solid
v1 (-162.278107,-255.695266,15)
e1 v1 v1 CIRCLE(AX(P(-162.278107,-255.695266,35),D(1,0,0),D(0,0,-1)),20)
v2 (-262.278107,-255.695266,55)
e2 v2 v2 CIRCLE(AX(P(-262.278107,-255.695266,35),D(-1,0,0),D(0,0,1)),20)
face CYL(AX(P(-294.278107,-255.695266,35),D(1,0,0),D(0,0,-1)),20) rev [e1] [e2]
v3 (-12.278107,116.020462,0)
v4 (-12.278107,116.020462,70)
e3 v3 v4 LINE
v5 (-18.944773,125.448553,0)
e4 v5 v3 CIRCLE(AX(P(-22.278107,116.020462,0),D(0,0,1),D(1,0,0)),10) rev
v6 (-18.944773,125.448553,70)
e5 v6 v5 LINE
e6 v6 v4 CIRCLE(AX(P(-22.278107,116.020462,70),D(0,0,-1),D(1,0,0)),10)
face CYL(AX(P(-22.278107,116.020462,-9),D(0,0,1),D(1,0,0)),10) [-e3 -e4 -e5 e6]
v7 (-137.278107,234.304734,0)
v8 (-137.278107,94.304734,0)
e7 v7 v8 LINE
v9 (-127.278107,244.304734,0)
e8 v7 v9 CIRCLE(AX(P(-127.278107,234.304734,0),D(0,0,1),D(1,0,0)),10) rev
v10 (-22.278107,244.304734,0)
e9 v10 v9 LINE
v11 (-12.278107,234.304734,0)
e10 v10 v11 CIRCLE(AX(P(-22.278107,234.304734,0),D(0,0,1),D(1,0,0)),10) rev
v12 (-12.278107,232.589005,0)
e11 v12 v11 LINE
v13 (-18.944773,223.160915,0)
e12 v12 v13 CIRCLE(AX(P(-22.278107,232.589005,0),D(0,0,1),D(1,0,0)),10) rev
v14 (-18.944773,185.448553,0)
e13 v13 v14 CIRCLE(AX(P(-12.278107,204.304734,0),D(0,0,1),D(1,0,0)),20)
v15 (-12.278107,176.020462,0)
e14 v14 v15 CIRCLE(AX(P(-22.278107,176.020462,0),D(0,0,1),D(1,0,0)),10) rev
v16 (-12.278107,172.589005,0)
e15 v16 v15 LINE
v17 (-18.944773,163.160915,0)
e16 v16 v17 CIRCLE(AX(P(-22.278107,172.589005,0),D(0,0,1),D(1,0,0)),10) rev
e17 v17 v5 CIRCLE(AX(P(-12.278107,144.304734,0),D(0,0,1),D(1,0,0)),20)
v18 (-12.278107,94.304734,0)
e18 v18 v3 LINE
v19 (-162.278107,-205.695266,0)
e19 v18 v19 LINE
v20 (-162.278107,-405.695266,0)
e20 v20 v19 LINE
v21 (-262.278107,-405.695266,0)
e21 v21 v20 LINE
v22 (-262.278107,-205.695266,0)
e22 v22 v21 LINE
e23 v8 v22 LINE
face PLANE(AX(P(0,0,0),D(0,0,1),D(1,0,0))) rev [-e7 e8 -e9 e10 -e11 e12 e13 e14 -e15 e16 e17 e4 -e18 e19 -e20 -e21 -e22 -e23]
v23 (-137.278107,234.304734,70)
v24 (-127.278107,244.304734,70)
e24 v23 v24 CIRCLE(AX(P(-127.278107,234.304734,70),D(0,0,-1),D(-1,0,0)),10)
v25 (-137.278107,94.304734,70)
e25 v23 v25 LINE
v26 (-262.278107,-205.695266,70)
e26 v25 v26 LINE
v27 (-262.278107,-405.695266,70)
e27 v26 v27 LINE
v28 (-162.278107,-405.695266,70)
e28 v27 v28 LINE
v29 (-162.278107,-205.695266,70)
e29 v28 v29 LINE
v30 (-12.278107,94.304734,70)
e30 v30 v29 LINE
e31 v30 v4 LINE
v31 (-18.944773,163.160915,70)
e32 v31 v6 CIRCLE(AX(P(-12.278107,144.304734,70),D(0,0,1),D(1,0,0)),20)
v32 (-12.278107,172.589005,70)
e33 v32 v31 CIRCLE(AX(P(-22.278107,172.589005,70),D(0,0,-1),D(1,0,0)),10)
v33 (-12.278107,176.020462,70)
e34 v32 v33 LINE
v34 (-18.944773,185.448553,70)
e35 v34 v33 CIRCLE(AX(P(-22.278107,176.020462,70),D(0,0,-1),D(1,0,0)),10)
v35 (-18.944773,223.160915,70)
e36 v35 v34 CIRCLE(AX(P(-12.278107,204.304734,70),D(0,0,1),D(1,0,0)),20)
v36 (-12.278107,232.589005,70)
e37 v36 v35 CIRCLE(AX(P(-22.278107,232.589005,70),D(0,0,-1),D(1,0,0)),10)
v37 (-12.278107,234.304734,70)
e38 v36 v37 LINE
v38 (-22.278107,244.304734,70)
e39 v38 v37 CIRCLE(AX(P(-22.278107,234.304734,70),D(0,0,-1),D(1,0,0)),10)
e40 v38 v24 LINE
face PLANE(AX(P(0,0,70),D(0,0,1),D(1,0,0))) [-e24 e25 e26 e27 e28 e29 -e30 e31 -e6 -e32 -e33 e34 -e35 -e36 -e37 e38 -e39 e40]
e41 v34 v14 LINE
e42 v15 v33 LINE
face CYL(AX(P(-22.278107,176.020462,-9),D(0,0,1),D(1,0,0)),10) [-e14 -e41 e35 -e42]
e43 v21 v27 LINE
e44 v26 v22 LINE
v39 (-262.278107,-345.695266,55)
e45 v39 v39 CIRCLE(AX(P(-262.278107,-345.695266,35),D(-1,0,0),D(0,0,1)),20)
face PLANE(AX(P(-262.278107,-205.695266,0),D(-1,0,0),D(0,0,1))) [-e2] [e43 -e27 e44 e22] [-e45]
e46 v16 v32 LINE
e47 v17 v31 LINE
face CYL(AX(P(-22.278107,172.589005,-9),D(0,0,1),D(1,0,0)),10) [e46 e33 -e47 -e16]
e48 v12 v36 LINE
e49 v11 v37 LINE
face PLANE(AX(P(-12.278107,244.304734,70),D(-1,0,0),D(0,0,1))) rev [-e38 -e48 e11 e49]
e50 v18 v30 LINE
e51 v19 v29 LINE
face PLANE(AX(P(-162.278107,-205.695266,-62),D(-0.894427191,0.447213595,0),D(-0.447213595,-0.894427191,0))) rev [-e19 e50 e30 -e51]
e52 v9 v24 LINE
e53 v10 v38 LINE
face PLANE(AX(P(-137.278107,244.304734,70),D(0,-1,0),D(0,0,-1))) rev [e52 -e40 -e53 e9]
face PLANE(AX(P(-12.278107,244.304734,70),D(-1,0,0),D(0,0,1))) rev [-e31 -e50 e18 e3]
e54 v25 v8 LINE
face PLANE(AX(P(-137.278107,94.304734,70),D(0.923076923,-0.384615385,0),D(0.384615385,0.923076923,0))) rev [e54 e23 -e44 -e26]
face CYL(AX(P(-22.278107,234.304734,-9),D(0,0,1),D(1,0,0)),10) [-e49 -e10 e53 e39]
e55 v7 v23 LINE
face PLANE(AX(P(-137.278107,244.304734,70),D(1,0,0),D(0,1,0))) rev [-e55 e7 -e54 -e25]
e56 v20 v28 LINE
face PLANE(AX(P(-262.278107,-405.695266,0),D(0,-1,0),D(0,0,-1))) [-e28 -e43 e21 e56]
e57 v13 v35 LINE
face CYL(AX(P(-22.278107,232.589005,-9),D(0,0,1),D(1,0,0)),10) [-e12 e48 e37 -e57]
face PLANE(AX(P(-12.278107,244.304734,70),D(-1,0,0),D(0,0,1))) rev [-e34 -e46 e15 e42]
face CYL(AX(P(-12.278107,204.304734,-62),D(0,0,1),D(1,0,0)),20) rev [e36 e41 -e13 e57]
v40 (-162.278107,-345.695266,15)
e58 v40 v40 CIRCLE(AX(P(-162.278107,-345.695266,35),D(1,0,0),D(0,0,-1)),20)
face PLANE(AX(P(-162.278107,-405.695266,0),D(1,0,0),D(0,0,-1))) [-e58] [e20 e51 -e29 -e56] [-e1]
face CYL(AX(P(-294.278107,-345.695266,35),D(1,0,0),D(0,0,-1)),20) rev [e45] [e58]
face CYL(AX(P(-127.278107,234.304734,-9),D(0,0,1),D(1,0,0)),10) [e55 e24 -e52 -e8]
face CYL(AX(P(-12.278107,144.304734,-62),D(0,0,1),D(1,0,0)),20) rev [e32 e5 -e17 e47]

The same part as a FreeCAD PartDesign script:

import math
import FreeCAD as App
import Part
import Sketcher
from FreeCAD import Vector


def add_polygon(sketch, points):
    """Adds a closed chain of lines whose ends are joined by coincident constraints."""
    first, n = sketch.GeometryCount, len(points)
    for a, b in zip(points, points[1:] + points[:1]):
        sketch.addGeometry(Part.LineSegment(App.Vector(*a, 0), App.Vector(*b, 0)), False)
    for i in range(n):
        sketch.addConstraint(Sketcher.Constraint("Coincident", first + i, 2, first + (i + 1) % n, 1))

doc = App.newDocument("Part")
body = doc.addObject("PartDesign::Body", "Body")

sketch1 = body.newObject("Sketcher::SketchObject", "Sketch")
sketch1.AttachmentSupport = (doc.getObject("XY_Plane"), [""])
sketch1.MapMode = "FlatFace"
add_polygon(sketch1, [(-12, 244), (-137, 244), (-137, 94), (-262, -206), (-12, -206)])
sketch1.addConstraint(Sketcher.Constraint("Horizontal", 0))
sketch1.addConstraint(Sketcher.Constraint("Vertical", 1))
sketch1.addConstraint(Sketcher.Constraint("Horizontal", 3))
sketch1.addConstraint(Sketcher.Constraint("Vertical", 4))
sketch1.addConstraint(Sketcher.Constraint("DistanceX", 0, 2, 0, 1, 125.0))
sketch1.addConstraint(Sketcher.Constraint("DistanceX", 3, 1, 3, 2, 250.0))
sketch1.addConstraint(Sketcher.Constraint("DistanceY", 1, 2, 1, 1, 150.0))
sketch1.addConstraint(Sketcher.Constraint("DistanceY", 4, 1, 4, 2, 450.0))
sketch1.addConstraint(Sketcher.Constraint("DistanceX", 0, 2, -1, 1, 137.278107))
sketch1.addConstraint(Sketcher.Constraint("DistanceY", -1, 1, 0, 2, 244.304734))
pad1 = body.newObject("PartDesign::Pad", "Pad")
pad1.Profile = sketch1
pad1.Length = 70

sketch2 = body.newObject("Sketcher::SketchObject", "Sketch001")
sketch2.AttachmentSupport = (doc.getObject("XY_Plane"), [""])
sketch2.MapMode = "FlatFace"
sketch2.AttachmentOffset = App.Placement(Vector(0, 0, 70), App.Rotation())
add_polygon(sketch2, [(-262, -206), (-262, -406), (-162, -406), (-162, -206)])
sketch2.addConstraint(Sketcher.Constraint("Vertical", 0))
sketch2.addConstraint(Sketcher.Constraint("Horizontal", 1))
sketch2.addConstraint(Sketcher.Constraint("Vertical", 2))
sketch2.addConstraint(Sketcher.Constraint("Horizontal", 3))
sketch2.addConstraint(Sketcher.Constraint("DistanceX", 1, 1, 1, 2, 100.0))
sketch2.addConstraint(Sketcher.Constraint("DistanceY", 0, 2, 0, 1, 200.0))
sketch2.addConstraint(Sketcher.Constraint("DistanceX", 0, 2, -1, 1, 262.278107))
sketch2.addConstraint(Sketcher.Constraint("DistanceY", 0, 2, -1, 1, 405.695266))
pad2 = body.newObject("PartDesign::Pad", "Pad001")
pad2.Profile = sketch2
pad2.Length = 70
pad2.Reversed = True

sketch3 = body.newObject("Sketcher::SketchObject", "Sketch002")
sketch3.AttachmentSupport = (doc.getObject("YZ_Plane"), [""])
sketch3.MapMode = "FlatFace"
sketch3.AttachmentOffset = App.Placement(Vector(0, 0, -162.278107), App.Rotation())
sketch3.addGeometry(Part.Circle(Vector(-256, 35, 0), Vector(0, 0, 1), 20), False)
sketch3.addGeometry(Part.Circle(Vector(-346, 35, 0), Vector(0, 0, 1), 20), False)
sketch3.addConstraint(Sketcher.Constraint("Equal", 0, 1))
sketch3.addConstraint(Sketcher.Constraint("Horizontal", 0, 3, 1, 3))
sketch3.addConstraint(Sketcher.Constraint("Diameter", 0, 40.0))
sketch3.addConstraint(Sketcher.Constraint("DistanceY", -1, 1, 0, 3, 35.0))
sketch3.addConstraint(Sketcher.Constraint("DistanceX", 1, 3, 0, 3, 90.0))
sketch3.addConstraint(Sketcher.Constraint("DistanceX", 0, 3, -1, 1, 255.695266))
pocket1 = body.newObject("PartDesign::Pocket", "Pocket")
pocket1.Profile = sketch3
pocket1.Length = 132

sketch4 = body.newObject("Sketcher::SketchObject", "Sketch003")
sketch4.AttachmentSupport = (doc.getObject("XY_Plane"), [""])
sketch4.MapMode = "FlatFace"
sketch4.AttachmentOffset = App.Placement(Vector(0, 0, 70), App.Rotation())
add_polygon(sketch4, [(-12, -206), (-12, 94), (-162, -206)])
sketch4.addConstraint(Sketcher.Constraint("Vertical", 0))
sketch4.addConstraint(Sketcher.Constraint("Horizontal", 2))
sketch4.addConstraint(Sketcher.Constraint("DistanceX", 2, 1, 2, 2, 150.0))
sketch4.addConstraint(Sketcher.Constraint("DistanceY", 0, 1, 0, 2, 300.0))
sketch4.addConstraint(Sketcher.Constraint("DistanceX", 0, 2, -1, 1, 12.278107))
sketch4.addConstraint(Sketcher.Constraint("DistanceY", -1, 1, 0, 2, 94.304734))
pocket2 = body.newObject("PartDesign::Pocket", "Pocket001")
pocket2.Profile = sketch4
pocket2.Length = 132

sketch5 = body.newObject("Sketcher::SketchObject", "Sketch004")
sketch5.AttachmentSupport = (doc.getObject("XY_Plane"), [""])
sketch5.MapMode = "FlatFace"
sketch5.AttachmentOffset = App.Placement(Vector(0, 0, 70), App.Rotation())
sketch5.addGeometry(Part.LineSegment(Vector(-12, 184, 0), Vector(-12, 224, 0)), False)
sketch5.addGeometry(Part.ArcOfCircle(Part.Circle(Vector(-12, 204, 0), Vector(0, 0, 1), 20), math.radians(90), math.radians(270)), False)
sketch5.addGeometry(Part.ArcOfCircle(Part.Circle(Vector(-12, 144, 0), Vector(0, 0, 1), 20), math.radians(90), math.radians(270)), False)
sketch5.addGeometry(Part.LineSegment(Vector(-12, 124, 0), Vector(-12, 164, 0)), False)
sketch5.addConstraint(Sketcher.Constraint("Coincident", 0, 1, 1, 2))
sketch5.addConstraint(Sketcher.Constraint("Coincident", 1, 1, 0, 2))
sketch5.addConstraint(Sketcher.Constraint("Coincident", 2, 1, 3, 2))
sketch5.addConstraint(Sketcher.Constraint("Coincident", 3, 1, 2, 2))
sketch5.addConstraint(Sketcher.Constraint("Vertical", 0))
sketch5.addConstraint(Sketcher.Constraint("Vertical", 3))
sketch5.addConstraint(Sketcher.Constraint("Equal", 1, 2))
sketch5.addConstraint(Sketcher.Constraint("Vertical", 1, 3, 2, 3))
sketch5.addConstraint(Sketcher.Constraint("Vertical", 2, 3, 0, 1))
sketch5.addConstraint(Sketcher.Constraint("Vertical", 1, 1, 2, 1))
sketch5.addConstraint(Sketcher.Constraint("Radius", 1, 20.0))
sketch5.addConstraint(Sketcher.Constraint("DistanceY", 2, 3, 1, 3, 60.0))
sketch5.addConstraint(Sketcher.Constraint("DistanceX", 1, 3, -1, 1, 12.278107))
sketch5.addConstraint(Sketcher.Constraint("DistanceY", -1, 1, 1, 3, 204.304734))
pocket3 = body.newObject("PartDesign::Pocket", "Pocket002")
pocket3.Profile = sketch5
pocket3.Length = 132

sketch6 = body.newObject("Sketcher::SketchObject", "Sketch005")
sketch6.AttachmentSupport = (doc.getObject("XY_Plane"), [""])
sketch6.MapMode = "FlatFace"
sketch6.AttachmentOffset = App.Placement(Vector(0, 0, 70), App.Rotation())
sketch6.addGeometry(Part.LineSegment(Vector(-127, 244, 0), Vector(-137, 244, 0)), False)
sketch6.addGeometry(Part.LineSegment(Vector(-137, 244, 0), Vector(-137, 234, 0)), False)
sketch6.addGeometry(Part.ArcOfCircle(Part.Circle(Vector(-127, 234, 0), Vector(0, 0, 1), 10), math.radians(90), math.radians(180)), False)
sketch6.addConstraint(Sketcher.Constraint("Coincident", 0, 2, 1, 1))
sketch6.addConstraint(Sketcher.Constraint("Tangent", 1, 2, 2, 2))
sketch6.addConstraint(Sketcher.Constraint("Tangent", 2, 1, 0, 1))
sketch6.addConstraint(Sketcher.Constraint("Horizontal", 0))
sketch6.addConstraint(Sketcher.Constraint("Vertical", 1))
sketch6.addConstraint(Sketcher.Constraint("Radius", 2, 10.0))
sketch6.addConstraint(Sketcher.Constraint("DistanceX", 2, 3, -1, 1, 127.278107))
sketch6.addConstraint(Sketcher.Constraint("DistanceY", -1, 1, 2, 3, 234.304734))
pocket4 = body.newObject("PartDesign::Pocket", "Pocket003")
pocket4.Profile = sketch6
pocket4.Length = 79

sketch7 = body.newObject("Sketcher::SketchObject", "Sketch006")
sketch7.AttachmentSupport = (doc.getObject("XY_Plane"), [""])
sketch7.MapMode = "FlatFace"
sketch7.AttachmentOffset = App.Placement(Vector(0, 0, 70), App.Rotation())
sketch7.addGeometry(Part.LineSegment(Vector(-12, 224, 0), Vector(-12, 233, 0)), False)
sketch7.addGeometry(Part.ArcOfCircle(Part.Circle(Vector(-22, 233, 0), Vector(0, 0, 1), 10), math.radians(-71), math.radians(0)), False)
sketch7.addGeometry(Part.LineSegment(Vector(-19, 223, 0), Vector(-12, 224, 0)), False)
sketch7.addConstraint(Sketcher.Constraint("Tangent", 0, 2, 1, 2))
sketch7.addConstraint(Sketcher.Constraint("Coincident", 1, 1, 2, 1))
sketch7.addConstraint(Sketcher.Constraint("Coincident", 2, 2, 0, 1))
sketch7.addConstraint(Sketcher.Constraint("Vertical", 0))
sketch7.addConstraint(Sketcher.Constraint("Radius", 1, 10.0))
sketch7.addConstraint(Sketcher.Constraint("DistanceY", 0, 1, 0, 2, 8.284271))
sketch7.addConstraint(Sketcher.Constraint("Distance", 2, 6.764079))
sketch7.addConstraint(Sketcher.Constraint("DistanceX", 1, 3, -1, 1, 22.278107))
sketch7.addConstraint(Sketcher.Constraint("DistanceY", -1, 1, 1, 3, 232.589005))
pocket5 = body.newObject("PartDesign::Pocket", "Pocket004")
pocket5.Profile = sketch7
pocket5.Length = 79

sketch8 = body.newObject("Sketcher::SketchObject", "Sketch007")
sketch8.AttachmentSupport = (doc.getObject("XY_Plane"), [""])
sketch8.MapMode = "FlatFace"
sketch8.AttachmentOffset = App.Placement(Vector(0, 0, 70), App.Rotation())
sketch8.addGeometry(Part.LineSegment(Vector(-12, 124, 0), Vector(-19, 125, 0)), False)
sketch8.addGeometry(Part.ArcOfCircle(Part.Circle(Vector(-22, 116, 0), Vector(0, 0, 1), 10), math.radians(0), math.radians(71)), False)
sketch8.addGeometry(Part.LineSegment(Vector(-12, 116, 0), Vector(-12, 124, 0)), False)
sketch8.addGeometry(Part.LineSegment(Vector(-12, 184, 0), Vector(-19, 185, 0)), False)
sketch8.addGeometry(Part.ArcOfCircle(Part.Circle(Vector(-22, 176, 0), Vector(0, 0, 1), 10), math.radians(0), math.radians(71)), False)
sketch8.addGeometry(Part.LineSegment(Vector(-12, 176, 0), Vector(-12, 184, 0)), False)
sketch8.addGeometry(Part.LineSegment(Vector(-19, 163, 0), Vector(-12, 164, 0)), False)
sketch8.addGeometry(Part.LineSegment(Vector(-12, 164, 0), Vector(-12, 173, 0)), False)
sketch8.addGeometry(Part.ArcOfCircle(Part.Circle(Vector(-22, 173, 0), Vector(0, 0, 1), 10), math.radians(-71), math.radians(0)), False)
sketch8.addConstraint(Sketcher.Constraint("Coincident", 0, 2, 1, 2))
sketch8.addConstraint(Sketcher.Constraint("Tangent", 1, 1, 2, 1))
sketch8.addConstraint(Sketcher.Constraint("Coincident", 2, 2, 0, 1))
sketch8.addConstraint(Sketcher.Constraint("Coincident", 3, 2, 4, 2))
sketch8.addConstraint(Sketcher.Constraint("Tangent", 4, 1, 5, 1))
sketch8.addConstraint(Sketcher.Constraint("Coincident", 5, 2, 3, 1))
sketch8.addConstraint(Sketcher.Constraint("Coincident", 6, 2, 7, 1))
sketch8.addConstraint(Sketcher.Constraint("Tangent", 7, 2, 8, 2))
sketch8.addConstraint(Sketcher.Constraint("Coincident", 8, 1, 6, 1))
sketch8.addConstraint(Sketcher.Constraint("Vertical", 2))
sketch8.addConstraint(Sketcher.Constraint("Vertical", 5))
sketch8.addConstraint(Sketcher.Constraint("Vertical", 7))
sketch8.addConstraint(Sketcher.Constraint("Equal", 1, 4))
sketch8.addConstraint(Sketcher.Constraint("Equal", 4, 8))
sketch8.addConstraint(Sketcher.Constraint("Parallel", 0, 3))
sketch8.addConstraint(Sketcher.Constraint("Vertical", 1, 3, 4, 3))
sketch8.addConstraint(Sketcher.Constraint("Vertical", 4, 3, 8, 3))
sketch8.addConstraint(Sketcher.Constraint("Vertical", 0, 2, 3, 2))
sketch8.addConstraint(Sketcher.Constraint("Vertical", 3, 2, 8, 1))
sketch8.addConstraint(Sketcher.Constraint("Equal", 5, 7))
sketch8.addConstraint(Sketcher.Constraint("Radius", 1, 10.0))
sketch8.addConstraint(Sketcher.Constraint("DistanceY", 1, 3, 4, 3, 60.0))
sketch8.addConstraint(Sketcher.Constraint("DistanceY", 6, 2, 5, 2, 20.0))
sketch8.addConstraint(Sketcher.Constraint("DistanceY", 2, 1, 2, 2, 8.284271))
sketch8.addConstraint(Sketcher.Constraint("Distance", 0, 6.764079))
sketch8.addConstraint(Sketcher.Constraint("DistanceX", 1, 3, -1, 1, 22.278107))
sketch8.addConstraint(Sketcher.Constraint("DistanceY", -1, 1, 1, 3, 116.020462))
pocket6 = body.newObject("PartDesign::Pocket", "Pocket005")
pocket6.Profile = sketch8
pocket6.Length = 79

sketch9 = body.newObject("Sketcher::SketchObject", "Sketch008")
sketch9.AttachmentSupport = (doc.getObject("XY_Plane"), [""])
sketch9.MapMode = "FlatFace"
sketch9.AttachmentOffset = App.Placement(Vector(0, 0, 70), App.Rotation())
sketch9.addGeometry(Part.LineSegment(Vector(-12, 244, 0), Vector(-22, 244, 0)), False)
sketch9.addGeometry(Part.ArcOfCircle(Part.Circle(Vector(-22, 234, 0), Vector(0, 0, 1), 10), math.radians(0), math.radians(90)), False)
sketch9.addGeometry(Part.LineSegment(Vector(-12, 234, 0), Vector(-12, 244, 0)), False)
sketch9.addConstraint(Sketcher.Constraint("Tangent", 0, 2, 1, 2))
sketch9.addConstraint(Sketcher.Constraint("Tangent", 1, 1, 2, 1))
sketch9.addConstraint(Sketcher.Constraint("Coincident", 2, 2, 0, 1))
sketch9.addConstraint(Sketcher.Constraint("Horizontal", 0))
sketch9.addConstraint(Sketcher.Constraint("Vertical", 2))
sketch9.addConstraint(Sketcher.Constraint("Radius", 1, 10.0))
sketch9.addConstraint(Sketcher.Constraint("DistanceX", 1, 3, -1, 1, 22.278107))
sketch9.addConstraint(Sketcher.Constraint("DistanceY", -1, 1, 1, 3, 234.304734))
pocket7 = body.newObject("PartDesign::Pocket", "Pocket006")
pocket7.Profile = sketch9
pocket7.Length = 79

doc.recompute()
